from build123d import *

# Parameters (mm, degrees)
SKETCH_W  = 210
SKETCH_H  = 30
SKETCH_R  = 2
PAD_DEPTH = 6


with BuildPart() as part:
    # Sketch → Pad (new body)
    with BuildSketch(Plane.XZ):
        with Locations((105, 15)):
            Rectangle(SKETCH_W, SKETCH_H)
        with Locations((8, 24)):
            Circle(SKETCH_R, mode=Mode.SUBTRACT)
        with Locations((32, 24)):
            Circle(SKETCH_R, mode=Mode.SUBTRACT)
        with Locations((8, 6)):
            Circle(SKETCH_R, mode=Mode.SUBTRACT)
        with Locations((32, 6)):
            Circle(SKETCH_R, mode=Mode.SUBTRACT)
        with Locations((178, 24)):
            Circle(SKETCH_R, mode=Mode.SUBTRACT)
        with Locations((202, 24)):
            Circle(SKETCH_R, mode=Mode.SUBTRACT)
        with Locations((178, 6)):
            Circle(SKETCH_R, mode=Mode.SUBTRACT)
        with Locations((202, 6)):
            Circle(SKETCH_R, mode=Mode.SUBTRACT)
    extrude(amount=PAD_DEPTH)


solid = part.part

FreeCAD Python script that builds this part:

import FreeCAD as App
import Part
import Sketcher

doc = App.newDocument("Part")
body = doc.addObject("PartDesign::Body", "Body")

# Sketch on XZ plane
sketch1 = doc.addObject("Sketcher::SketchObject", "Sketch")
body.addObject(sketch1)
sketch1.AttachmentSupport = (doc.XZ_Plane, [""])
sketch1.MapMode = "FlatFace"
sketch1.addGeometry([
    Part.LineSegment(App.Vector(0, 30, 0), App.Vector(0, 0, 0)),  # 0
    Part.LineSegment(App.Vector(0, 0, 0), App.Vector(210, 0, 0)),  # 1
    Part.LineSegment(App.Vector(210, 0, 0), App.Vector(210, 30, 0)),  # 2
    Part.LineSegment(App.Vector(210, 30, 0), App.Vector(0, 30, 0)),  # 3
    Part.Circle(App.Vector(8, 6, 0), App.Vector(0, 0, 1), 2),  # 4
    Part.Circle(App.Vector(32, 6, 0), App.Vector(0, 0, 1), 2),  # 5
    Part.Circle(App.Vector(178, 6, 0), App.Vector(0, 0, 1), 2),  # 6
    Part.Circle(App.Vector(202, 6, 0), App.Vector(0, 0, 1), 2),  # 7
    Part.Circle(App.Vector(8, 24, 0), App.Vector(0, 0, 1), 2),  # 8
    Part.Circle(App.Vector(32, 24, 0), App.Vector(0, 0, 1), 2),  # 9
    Part.Circle(App.Vector(178, 24, 0), App.Vector(0, 0, 1), 2),  # 10
    Part.Circle(App.Vector(202, 24, 0), App.Vector(0, 0, 1), 2),  # 11
], False)
sketch1.addConstraint([
    Sketcher.Constraint("Coincident", 0, 2, 1, 1),
    Sketcher.Constraint("Coincident", 1, 2, 2, 1),
    Sketcher.Constraint("Coincident", 2, 2, 3, 1),
    Sketcher.Constraint("Coincident", 3, 2, 0, 1),
    Sketcher.Constraint("Vertical", 0),
    Sketcher.Constraint("Horizontal", 1),
    Sketcher.Constraint("Vertical", 2),
    Sketcher.Constraint("Horizontal", 3),
    Sketcher.Constraint("Coincident", 0, 2, -1, 1),
    Sketcher.Constraint("Equal", 4, 5),
    Sketcher.Constraint("Equal", 5, 6),
    Sketcher.Constraint("Equal", 6, 7),
    Sketcher.Constraint("Equal", 7, 8),
    Sketcher.Constraint("Equal", 8, 9),
    Sketcher.Constraint("Equal", 9, 10),
    Sketcher.Constraint("Equal", 10, 11),
    Sketcher.Constraint("Horizontal", 4, 3, 5, 3),
    Sketcher.Constraint("Horizontal", 5, 3, 6, 3),
    Sketcher.Constraint("Horizontal", 6, 3, 7, 3),
    Sketcher.Constraint("Horizontal", 8, 3, 9, 3),
    Sketcher.Constraint("Horizontal", 9, 3, 10, 3),
    Sketcher.Constraint("Horizontal", 10, 3, 11, 3),
    Sketcher.Constraint("Vertical", 4, 3, 8, 3),
    Sketcher.Constraint("Vertical", 5, 3, 9, 3),
    Sketcher.Constraint("Vertical", 6, 3, 10, 3),
    Sketcher.Constraint("Vertical", 7, 3, 11, 3),
    Sketcher.Constraint("Diameter", 4, 4.0),
    Sketcher.Constraint("DistanceX", 1, 1, 1, 2, 210.0),
    Sketcher.Constraint("DistanceY", 0, 2, 0, 1, 30.0),
    Sketcher.Constraint("DistanceX", -1, 1, 4, 3, 8.0),
    Sketcher.Constraint("DistanceY", -1, 1, 4, 3, 6.0),
    Sketcher.Constraint("DistanceX", -1, 1, 5, 3, 32.0),
    Sketcher.Constraint("DistanceX", -1, 1, 6, 3, 178.0),
    Sketcher.Constraint("DistanceX", -1, 1, 7, 3, 202.0),
    Sketcher.Constraint("DistanceY", -1, 1, 8, 3, 24.0),
])
pad1 = doc.addObject("PartDesign::Pad", "Pad")
body.addObject(pad1)
pad1.Profile = sketch1
pad1.Length = 6

doc.recompute()
